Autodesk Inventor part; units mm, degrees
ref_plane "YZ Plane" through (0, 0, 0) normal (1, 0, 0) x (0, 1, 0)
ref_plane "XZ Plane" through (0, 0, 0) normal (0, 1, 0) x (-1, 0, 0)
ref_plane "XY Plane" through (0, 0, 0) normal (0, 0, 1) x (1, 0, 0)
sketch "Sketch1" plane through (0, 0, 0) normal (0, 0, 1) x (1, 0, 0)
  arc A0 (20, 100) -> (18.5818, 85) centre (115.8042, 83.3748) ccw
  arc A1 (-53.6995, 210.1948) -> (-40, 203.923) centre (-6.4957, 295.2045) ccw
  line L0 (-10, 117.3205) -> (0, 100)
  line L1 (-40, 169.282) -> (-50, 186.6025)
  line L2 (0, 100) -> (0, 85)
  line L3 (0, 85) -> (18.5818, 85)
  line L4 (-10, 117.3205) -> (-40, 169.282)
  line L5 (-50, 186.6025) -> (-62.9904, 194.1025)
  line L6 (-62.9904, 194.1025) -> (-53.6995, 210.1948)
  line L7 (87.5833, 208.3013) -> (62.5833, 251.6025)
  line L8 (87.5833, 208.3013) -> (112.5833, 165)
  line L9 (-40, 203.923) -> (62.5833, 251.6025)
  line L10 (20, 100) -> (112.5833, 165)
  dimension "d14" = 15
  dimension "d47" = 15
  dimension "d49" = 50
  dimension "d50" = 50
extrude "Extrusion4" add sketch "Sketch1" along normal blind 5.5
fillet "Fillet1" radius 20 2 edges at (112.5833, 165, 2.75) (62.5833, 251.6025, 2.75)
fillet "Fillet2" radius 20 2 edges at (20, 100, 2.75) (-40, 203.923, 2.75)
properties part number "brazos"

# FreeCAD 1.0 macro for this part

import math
import FreeCAD as App
import Part
import Sketcher
Q = App.Units.Quantity


def edges_at(feature, points):
    """Names of the edges that pass closest to the given points."""
    edges = feature.Shape.Edges
    near = lambda p: min(range(len(edges)), key=lambda i: edges[i].distToShape(Part.Vertex(*p))[0])
    return sorted({f"Edge{near(p) + 1}" for p in points})

doc = App.newDocument("Part")
body = doc.addObject("PartDesign::Body", "Body")

sketch1 = doc.addObject("Sketcher::SketchObject", "Sketch")
body.addObject(sketch1)
sketch1.AttachmentSupport = (doc.XY_Plane, [""])
sketch1.MapMode = "FlatFace"
sketch1.addGeometry(Part.ArcOfCircle(Part.Circle(App.Vector(116, 83, 0), App.Vector(0, 0, 1), 97), math.radians(170.16), math.radians(179.04)), False)
sketch1.addGeometry(Part.LineSegment(App.Vector(20, 100, 0), App.Vector(113, 165, 0)), False)
sketch1.addGeometry(Part.LineSegment(App.Vector(113, 165, 0), App.Vector(88, 208, 0)), False)
sketch1.addGeometry(Part.LineSegment(App.Vector(88, 208, 0), App.Vector(63, 252, 0)), False)
sketch1.addGeometry(Part.LineSegment(App.Vector(63, 252, 0), App.Vector(-40, 204, 0)), False)
sketch1.addGeometry(Part.ArcOfCircle(Part.Circle(App.Vector(-6, 295, 0), App.Vector(0, 0, 1), 97), math.radians(-119.04), math.radians(-110.16)), False)
sketch1.addGeometry(Part.LineSegment(App.Vector(-54, 210, 0), App.Vector(-63, 194, 0)), False)
sketch1.addGeometry(Part.LineSegment(App.Vector(-63, 194, 0), App.Vector(-50, 187, 0)), False)
sketch1.addGeometry(Part.LineSegment(App.Vector(-50, 187, 0), App.Vector(0, 100, 0)), False)
sketch1.addGeometry(Part.LineSegment(App.Vector(0, 100, 0), App.Vector(0, 85, 0)), False)
sketch1.addGeometry(Part.LineSegment(App.Vector(0, 85, 0), App.Vector(19, 85, 0)), False)
sketch1.addConstraint(Sketcher.Constraint("Coincident", 0, 1, 1, 1))
sketch1.addConstraint(Sketcher.Constraint("Coincident", 1, 2, 2, 1))
sketch1.addConstraint(Sketcher.Constraint("Coincident", 2, 2, 3, 1))
sketch1.addConstraint(Sketcher.Constraint("Coincident", 3, 2, 4, 1))
sketch1.addConstraint(Sketcher.Constraint("Coincident", 4, 2, 5, 2))
sketch1.addConstraint(Sketcher.Constraint("Coincident", 5, 1, 6, 1))
sketch1.addConstraint(Sketcher.Constraint("Coincident", 6, 2, 7, 1))
sketch1.addConstraint(Sketcher.Constraint("Coincident", 7, 2, 8, 1))
sketch1.addConstraint(Sketcher.Constraint("Coincident", 8, 2, 9, 1))
sketch1.addConstraint(Sketcher.Constraint("Coincident", 9, 2, 10, 1))
sketch1.addConstraint(Sketcher.Constraint("Coincident", 10, 2, 0, 2))
sketch1.addConstraint(Sketcher.Constraint("Vertical", 9))
sketch1.addConstraint(Sketcher.Constraint("Horizontal", 10))
sketch1.addConstraint(Sketcher.Constraint("PointOnObject", 8, 2, -2))
sketch1.addConstraint(Sketcher.Constraint("Parallel", 2, 3))
sketch1.addConstraint(Sketcher.Constraint("Perpendicular", 6, 7))
sketch1.addConstraint(Sketcher.Constraint("Parallel", 3, 8))
sketch1.addConstraint(Sketcher.Constraint("Horizontal", 0, 1, 8, 2))
sketch1.addConstraint(Sketcher.Constraint("Equal", 2, 3))
sketch1.addConstraint(Sketcher.Constraint("Equal", 1, 4))
sketch1.addConstraint(Sketcher.Constraint("DistanceY", 9, 2, 9, 1, Q("15 mm")))
sketch1.addConstraint(Sketcher.Constraint("Distance", 2, Q("50 mm")))
sketch1.addConstraint(Sketcher.Constraint("Distance", 7, Q("15 mm")))
sketch1.addConstraint(Sketcher.Constraint("DistanceX", 7, 2, -1, 1, Q("50 mm")))
sketch1.addConstraint(Sketcher.Constraint("DistanceX", 3, 2, 1, 2, Q("50 mm")))
sketch1.addConstraint(Sketcher.Constraint("Angle", 6, Q("-120 deg")))
sketch1.addConstraint(Sketcher.Constraint("DistanceX", -1, 1, 0, 1, Q("20 mm")))
sketch1.addConstraint(Sketcher.Constraint("DistanceY", -1, 1, 0, 1, Q("100 mm")))
sketch1.addConstraint(Sketcher.Constraint("DistanceY", -1, 1, 1, 2, Q("165 mm")))
sketch1.addConstraint(Sketcher.Constraint("DistanceX", 4, 2, -1, 1, Q("40 mm")))
sketch1.addConstraint(Sketcher.Constraint("Radius", 0, Q("97.2312 mm")))
sketch1.addConstraint(Sketcher.Constraint("Radius", 5, Q("97.2382 mm")))
sketch1.addConstraint(Sketcher.Constraint("DistanceX", 10, 1, 10, 2, Q("18.5818 mm")))
sketch1.addConstraint(Sketcher.Constraint("DistanceY", -1, 1, 4, 2, Q("203.923 mm")))
sketch1.addConstraint(Sketcher.Constraint("DistanceX", 5, 3, 0, 3, Q("122.294 mm")))
pad1 = doc.addObject("PartDesign::Pad", "Pad")
body.addObject(pad1)
pad1.Profile = sketch1
pad1.Length = 5.5
doc.recompute()

fillet = doc.addObject("PartDesign::Fillet", "Fillet")
body.addObject(fillet)
fillet.Base = (pad1, edges_at(pad1, [(112.583, 165, 2.75), (62.583, 251.602, 2.75)]))
fillet.Radius = 20
doc.recompute()

fillet2 = doc.addObject("PartDesign::Fillet", "Fillet001")
body.addObject(fillet2)
fillet2.Base = (fillet, edges_at(fillet, [(20, 100, 2.75), (-40, 203.923, 2.75)]))
fillet2.Radius = 20

doc.recompute()
